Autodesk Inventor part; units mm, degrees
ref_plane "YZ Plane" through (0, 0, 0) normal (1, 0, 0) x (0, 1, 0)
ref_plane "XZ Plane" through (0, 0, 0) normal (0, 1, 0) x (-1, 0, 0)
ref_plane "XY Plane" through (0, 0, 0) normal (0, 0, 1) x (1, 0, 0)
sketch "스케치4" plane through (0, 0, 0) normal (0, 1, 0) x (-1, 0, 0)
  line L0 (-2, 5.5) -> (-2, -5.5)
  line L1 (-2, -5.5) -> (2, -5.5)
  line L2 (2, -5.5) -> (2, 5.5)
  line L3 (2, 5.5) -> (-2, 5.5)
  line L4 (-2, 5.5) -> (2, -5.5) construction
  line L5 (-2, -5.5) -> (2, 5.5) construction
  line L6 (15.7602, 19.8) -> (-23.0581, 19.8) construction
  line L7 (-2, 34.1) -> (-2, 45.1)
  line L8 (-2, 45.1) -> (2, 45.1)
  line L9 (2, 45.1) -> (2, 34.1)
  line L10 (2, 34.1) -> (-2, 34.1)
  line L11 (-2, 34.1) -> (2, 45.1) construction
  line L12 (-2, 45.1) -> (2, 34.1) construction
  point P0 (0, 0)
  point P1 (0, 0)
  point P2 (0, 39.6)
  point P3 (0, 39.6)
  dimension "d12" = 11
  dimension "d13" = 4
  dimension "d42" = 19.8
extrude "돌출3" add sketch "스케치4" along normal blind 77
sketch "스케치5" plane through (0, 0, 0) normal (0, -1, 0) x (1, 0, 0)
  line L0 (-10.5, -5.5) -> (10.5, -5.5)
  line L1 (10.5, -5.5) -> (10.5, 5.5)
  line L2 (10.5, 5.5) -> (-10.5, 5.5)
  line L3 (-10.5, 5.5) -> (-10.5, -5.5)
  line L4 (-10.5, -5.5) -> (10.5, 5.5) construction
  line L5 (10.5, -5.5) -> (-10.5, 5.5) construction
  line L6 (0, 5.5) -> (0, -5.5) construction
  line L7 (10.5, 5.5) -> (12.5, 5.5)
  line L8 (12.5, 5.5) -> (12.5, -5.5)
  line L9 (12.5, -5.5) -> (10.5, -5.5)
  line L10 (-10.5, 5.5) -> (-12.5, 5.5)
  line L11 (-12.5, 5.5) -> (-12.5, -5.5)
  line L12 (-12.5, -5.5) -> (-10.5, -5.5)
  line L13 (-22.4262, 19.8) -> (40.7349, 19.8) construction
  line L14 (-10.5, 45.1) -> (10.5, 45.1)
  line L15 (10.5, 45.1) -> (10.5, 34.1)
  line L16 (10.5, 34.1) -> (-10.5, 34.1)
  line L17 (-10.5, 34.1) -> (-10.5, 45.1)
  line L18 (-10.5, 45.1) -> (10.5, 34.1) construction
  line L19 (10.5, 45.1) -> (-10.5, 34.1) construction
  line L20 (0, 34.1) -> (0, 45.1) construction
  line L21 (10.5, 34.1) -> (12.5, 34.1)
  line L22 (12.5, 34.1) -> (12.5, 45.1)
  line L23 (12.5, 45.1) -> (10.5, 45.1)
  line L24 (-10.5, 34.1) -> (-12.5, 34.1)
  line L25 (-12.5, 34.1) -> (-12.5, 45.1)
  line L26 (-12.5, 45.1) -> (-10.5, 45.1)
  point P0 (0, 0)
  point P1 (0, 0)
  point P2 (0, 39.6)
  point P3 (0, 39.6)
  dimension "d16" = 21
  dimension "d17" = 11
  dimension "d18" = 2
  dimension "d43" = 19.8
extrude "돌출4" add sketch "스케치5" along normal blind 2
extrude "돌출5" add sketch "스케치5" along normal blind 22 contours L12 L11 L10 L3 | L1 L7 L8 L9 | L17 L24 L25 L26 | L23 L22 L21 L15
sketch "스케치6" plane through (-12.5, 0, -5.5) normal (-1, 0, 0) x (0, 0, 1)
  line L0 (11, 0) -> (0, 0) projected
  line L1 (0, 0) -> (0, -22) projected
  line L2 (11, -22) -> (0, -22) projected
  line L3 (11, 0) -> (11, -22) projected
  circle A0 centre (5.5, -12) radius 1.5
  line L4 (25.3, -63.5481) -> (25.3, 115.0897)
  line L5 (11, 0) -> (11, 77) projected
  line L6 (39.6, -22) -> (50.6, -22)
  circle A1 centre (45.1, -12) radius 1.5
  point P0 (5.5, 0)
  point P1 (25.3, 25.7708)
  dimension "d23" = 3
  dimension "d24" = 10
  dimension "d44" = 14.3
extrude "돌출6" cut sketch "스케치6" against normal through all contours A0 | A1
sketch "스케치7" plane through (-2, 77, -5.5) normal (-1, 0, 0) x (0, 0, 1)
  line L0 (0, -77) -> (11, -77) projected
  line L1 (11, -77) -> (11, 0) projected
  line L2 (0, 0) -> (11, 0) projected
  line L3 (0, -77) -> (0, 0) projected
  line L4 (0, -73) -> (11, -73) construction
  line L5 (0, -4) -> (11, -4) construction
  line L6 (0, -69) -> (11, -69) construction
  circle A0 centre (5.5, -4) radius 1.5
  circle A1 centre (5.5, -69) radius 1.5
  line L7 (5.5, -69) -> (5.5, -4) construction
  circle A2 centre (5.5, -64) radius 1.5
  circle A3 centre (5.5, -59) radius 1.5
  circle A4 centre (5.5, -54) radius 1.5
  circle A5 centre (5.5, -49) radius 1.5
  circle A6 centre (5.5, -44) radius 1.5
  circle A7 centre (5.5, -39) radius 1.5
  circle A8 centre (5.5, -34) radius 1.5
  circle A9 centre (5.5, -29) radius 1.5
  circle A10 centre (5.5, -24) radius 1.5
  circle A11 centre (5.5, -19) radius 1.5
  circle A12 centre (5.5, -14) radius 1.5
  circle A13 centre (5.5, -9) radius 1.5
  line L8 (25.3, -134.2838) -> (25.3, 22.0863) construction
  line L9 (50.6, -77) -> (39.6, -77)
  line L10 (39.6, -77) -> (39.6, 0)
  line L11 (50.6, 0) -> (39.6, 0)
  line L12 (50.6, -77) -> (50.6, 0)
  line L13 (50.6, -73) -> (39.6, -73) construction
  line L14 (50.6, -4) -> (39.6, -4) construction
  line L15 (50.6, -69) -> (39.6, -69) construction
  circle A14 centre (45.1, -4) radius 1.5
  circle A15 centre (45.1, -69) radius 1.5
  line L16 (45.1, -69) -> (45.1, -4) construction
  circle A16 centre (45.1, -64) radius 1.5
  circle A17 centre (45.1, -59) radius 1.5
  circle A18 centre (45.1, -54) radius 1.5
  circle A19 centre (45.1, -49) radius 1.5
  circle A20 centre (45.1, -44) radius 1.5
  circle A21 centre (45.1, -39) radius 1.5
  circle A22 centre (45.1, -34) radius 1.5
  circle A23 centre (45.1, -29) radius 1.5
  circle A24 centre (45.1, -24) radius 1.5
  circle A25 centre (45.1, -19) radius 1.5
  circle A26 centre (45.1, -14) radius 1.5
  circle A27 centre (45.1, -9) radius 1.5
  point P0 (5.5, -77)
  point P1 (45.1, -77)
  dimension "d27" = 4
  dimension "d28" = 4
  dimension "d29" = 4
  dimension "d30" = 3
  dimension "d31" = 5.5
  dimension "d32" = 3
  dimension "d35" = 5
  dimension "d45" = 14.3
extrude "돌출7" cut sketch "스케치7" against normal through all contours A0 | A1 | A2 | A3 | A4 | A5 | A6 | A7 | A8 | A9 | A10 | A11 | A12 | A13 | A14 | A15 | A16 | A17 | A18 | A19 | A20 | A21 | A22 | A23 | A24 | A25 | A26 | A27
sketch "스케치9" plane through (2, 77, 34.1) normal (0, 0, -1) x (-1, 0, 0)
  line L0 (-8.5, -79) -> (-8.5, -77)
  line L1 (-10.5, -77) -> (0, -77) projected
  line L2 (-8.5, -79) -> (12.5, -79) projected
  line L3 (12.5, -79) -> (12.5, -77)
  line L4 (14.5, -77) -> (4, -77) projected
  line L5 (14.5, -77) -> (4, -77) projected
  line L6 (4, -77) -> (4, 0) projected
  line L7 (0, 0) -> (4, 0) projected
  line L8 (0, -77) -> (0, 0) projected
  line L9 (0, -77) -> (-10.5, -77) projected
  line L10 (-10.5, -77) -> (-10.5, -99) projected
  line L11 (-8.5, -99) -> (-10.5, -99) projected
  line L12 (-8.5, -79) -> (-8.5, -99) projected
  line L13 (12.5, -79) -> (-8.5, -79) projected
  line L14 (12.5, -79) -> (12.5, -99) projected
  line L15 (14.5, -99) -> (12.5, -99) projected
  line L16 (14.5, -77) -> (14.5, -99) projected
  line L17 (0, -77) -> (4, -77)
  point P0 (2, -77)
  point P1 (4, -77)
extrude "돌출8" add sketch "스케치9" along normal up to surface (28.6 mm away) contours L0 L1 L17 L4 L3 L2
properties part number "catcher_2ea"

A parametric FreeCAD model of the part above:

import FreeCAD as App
import Part
import Sketcher


def add_polygon(sketch, points):
    """Adds a closed chain of lines whose ends are joined by coincident constraints."""
    first, n = sketch.GeometryCount, len(points)
    for a, b in zip(points, points[1:] + points[:1]):
        sketch.addGeometry(Part.LineSegment(App.Vector(*a, 0), App.Vector(*b, 0)), False)
    for i in range(n):
        sketch.addConstraint(Sketcher.Constraint("Coincident", first + i, 2, first + (i + 1) % n, 1))

doc = App.newDocument("Part")
body = doc.addObject("PartDesign::Body", "Body")
body.AllowCompound = True

sketch1 = body.newObject("Sketcher::SketchObject", "Sketch")
sketch1.AttachmentSupport = (doc.getObject("XZ_Plane"), [""])
sketch1.MapMode = "FlatFace"
add_polygon(sketch1, [(-2, 5.5), (2, 5.5), (2, -5.5), (-2, -5.5)])
add_polygon(sketch1, [(2, 45.1), (2, 34.1), (-2, 34.1), (-2, 45.1)])
sketch1.addConstraint(Sketcher.Constraint("Horizontal", 0))
sketch1.addConstraint(Sketcher.Constraint("Vertical", 1))
sketch1.addConstraint(Sketcher.Constraint("Horizontal", 2))
sketch1.addConstraint(Sketcher.Constraint("Vertical", 3))
sketch1.addConstraint(Sketcher.Constraint("Vertical", 4))
sketch1.addConstraint(Sketcher.Constraint("Horizontal", 5))
sketch1.addConstraint(Sketcher.Constraint("Vertical", 6))
sketch1.addConstraint(Sketcher.Constraint("Horizontal", 7))
sketch1.addConstraint(Sketcher.Constraint("Symmetric", 0, 2, 2, 2, -1, 1))
sketch1.addConstraint(Sketcher.Constraint("Vertical", 1, 2, 4, 2))
sketch1.addConstraint(Sketcher.Constraint("Vertical", 3, 2, 5, 2))
sketch1.addConstraint(Sketcher.Constraint("Equal", 3, 4))
sketch1.addConstraint(Sketcher.Constraint("DistanceX", 0, 1, 0, 2, 4.0))
sketch1.addConstraint(Sketcher.Constraint("DistanceY", 1, 2, 1, 1, 11.0))
sketch1.addConstraint(Sketcher.Constraint("DistanceY", -1, 1, 4, 2, 34.1))
pad1 = body.newObject("PartDesign::Pad", "Pad")
pad1.Profile = sketch1
pad1.Length = 77
pad1.Reversed = True

sketch2 = body.newObject("Sketcher::SketchObject", "Sketch001")
sketch2.AttachmentSupport = (doc.getObject("XZ_Plane"), [""])
sketch2.MapMode = "FlatFace"
add_polygon(sketch2, [(-12, 6), (-12, -6), (12, -6), (12, 6)])
add_polygon(sketch2, [(-12, 45), (-12, 34), (12, 34), (12, 45)])
sketch2.addConstraint(Sketcher.Constraint("Vertical", 0))
sketch2.addConstraint(Sketcher.Constraint("Horizontal", 1))
sketch2.addConstraint(Sketcher.Constraint("Vertical", 2))
sketch2.addConstraint(Sketcher.Constraint("Horizontal", 3))
sketch2.addConstraint(Sketcher.Constraint("Vertical", 4))
sketch2.addConstraint(Sketcher.Constraint("Horizontal", 5))
sketch2.addConstraint(Sketcher.Constraint("Vertical", 6))
sketch2.addConstraint(Sketcher.Constraint("Horizontal", 7))
sketch2.addConstraint(Sketcher.Constraint("Symmetric", 0, 2, 2, 2, -1, 1))
sketch2.addConstraint(Sketcher.Constraint("Vertical", 3, 2, 4, 2))
sketch2.addConstraint(Sketcher.Constraint("Vertical", 2, 2, 5, 2))
sketch2.addConstraint(Sketcher.Constraint("Equal", 2, 4))
sketch2.addConstraint(Sketcher.Constraint("DistanceY", 0, 2, 0, 1, 11.0))
sketch2.addConstraint(Sketcher.Constraint("DistanceX", 1, 1, 1, 2, 25.0))
sketch2.addConstraint(Sketcher.Constraint("DistanceY", -1, 1, 4, 2, 34.1))
pad2 = body.newObject("PartDesign::Pad", "Pad001")
pad2.Profile = sketch2
pad2.Length = 2

sketch3 = body.newObject("Sketcher::SketchObject", "Sketch002")
sketch3.AttachmentSupport = (doc.getObject("XZ_Plane"), [""])
sketch3.MapMode = "FlatFace"
add_polygon(sketch3, [(-12.5, -5.5), (-10.5, -5.5), (-10.5, 5.5), (-12.5, 5.5)])
add_polygon(sketch3, [(10.5, 5.5), (10.5, -5.5), (12.5, -5.5), (12.5, 5.5)])
add_polygon(sketch3, [(-10.5, 34.1), (-10.5, 45.1), (-12.5, 45.1), (-12.5, 34.1)])
add_polygon(sketch3, [(12.5, 45.1), (10.5, 45.1), (10.5, 34.1), (12.5, 34.1)])
sketch3.addConstraint(Sketcher.Constraint("Horizontal", 0))
sketch3.addConstraint(Sketcher.Constraint("Vertical", 1))
sketch3.addConstraint(Sketcher.Constraint("Horizontal", 2))
sketch3.addConstraint(Sketcher.Constraint("Vertical", 3))
sketch3.addConstraint(Sketcher.Constraint("Vertical", 4))
sketch3.addConstraint(Sketcher.Constraint("Horizontal", 5))
sketch3.addConstraint(Sketcher.Constraint("Vertical", 6))
sketch3.addConstraint(Sketcher.Constraint("Horizontal", 7))
sketch3.addConstraint(Sketcher.Constraint("Vertical", 8))
sketch3.addConstraint(Sketcher.Constraint("Horizontal", 9))
sketch3.addConstraint(Sketcher.Constraint("Vertical", 10))
sketch3.addConstraint(Sketcher.Constraint("Horizontal", 11))
sketch3.addConstraint(Sketcher.Constraint("Horizontal", 12))
sketch3.addConstraint(Sketcher.Constraint("Vertical", 13))
sketch3.addConstraint(Sketcher.Constraint("Horizontal", 14))
sketch3.addConstraint(Sketcher.Constraint("Vertical", 15))
sketch3.addConstraint(Sketcher.Constraint("Symmetric", 1, 2, 4, 2, -1, 1))
sketch3.addConstraint(Sketcher.Constraint("Symmetric", 3, 2, 6, 2, -1, 1))
sketch3.addConstraint(Sketcher.Constraint("Symmetric", 8, 2, 12, 2, -2))
sketch3.addConstraint(Sketcher.Constraint("Symmetric", 10, 2, 14, 2, -2))
sketch3.addConstraint(Sketcher.Constraint("Horizontal", 3, 2, 4, 2))
sketch3.addConstraint(Sketcher.Constraint("Vertical", 1, 2, 8, 2))
sketch3.addConstraint(Sketcher.Constraint("Vertical", 3, 2, 9, 2))
sketch3.addConstraint(Sketcher.Constraint("Equal", 6, 8))
sketch3.addConstraint(Sketcher.Constraint("DistanceX", 0, 1, 0, 2, 2.0))
sketch3.addConstraint(Sketcher.Constraint("DistanceY", 1, 1, 1, 2, 11.0))
sketch3.addConstraint(Sketcher.Constraint("DistanceX", 0, 2, 4, 2, 21.0))
sketch3.addConstraint(Sketcher.Constraint("DistanceY", -1, 1, 8, 2, 45.1))
pad3 = body.newObject("PartDesign::Pad", "Pad002")
pad3.Profile = sketch3
pad3.Length = 22

sketch4 = body.newObject("Sketcher::SketchObject", "Sketch003")
sketch4.AttachmentSupport = (doc.getObject("YZ_Plane"), [""])
sketch4.MapMode = "FlatFace"
sketch4.AttachmentOffset = App.Placement(App.Vector(0, 0, -12.5), App.Rotation())
sketch4.addGeometry(Part.Circle(App.Vector(-12, 0, 0), App.Vector(0, 0, 1), 1.5), False)
sketch4.addGeometry(Part.Circle(App.Vector(-12, 39.6, 0), App.Vector(0, 0, 1), 1.5), False)
sketch4.addConstraint(Sketcher.Constraint("Equal", 0, 1))
sketch4.addConstraint(Sketcher.Constraint("PointOnObject", 0, 3, -1))
sketch4.addConstraint(Sketcher.Constraint("Vertical", 0, 3, 1, 3))
sketch4.addConstraint(Sketcher.Constraint("Diameter", 0, 3.0))
sketch4.addConstraint(Sketcher.Constraint("DistanceX", 0, 3, -1, 1, 12.0))
sketch4.addConstraint(Sketcher.Constraint("DistanceY", -1, 1, 1, 3, 39.6))
pocket1 = body.newObject("PartDesign::Pocket", "Pocket")
pocket1.Profile = sketch4
pocket1.Type = "ThroughAll"
pocket1.Reversed = True

sketch5 = body.newObject("Sketcher::SketchObject", "Sketch004")
sketch5.AttachmentSupport = (doc.getObject("YZ_Plane"), [""])
sketch5.MapMode = "FlatFace"
sketch5.AttachmentOffset = App.Placement(App.Vector(0, 0, -2), App.Rotation())
sketch5.addGeometry(Part.Circle(App.Vector(73, 0, 0), App.Vector(0, 0, 1), 1.5), False)
sketch5.addGeometry(Part.Circle(App.Vector(8, 0, 0), App.Vector(0, 0, 1), 1.5), False)
sketch5.addGeometry(Part.Circle(App.Vector(13, 0, 0), App.Vector(0, 0, 1), 1.5), False)
sketch5.addGeometry(Part.Circle(App.Vector(18, 0, 0), App.Vector(0, 0, 1), 1.5), False)
sketch5.addGeometry(Part.Circle(App.Vector(23, 0, 0), App.Vector(0, 0, 1), 1.5), False)
sketch5.addGeometry(Part.Circle(App.Vector(28, 0, 0), App.Vector(0, 0, 1), 1.5), False)
sketch5.addGeometry(Part.Circle(App.Vector(33, 0, 0), App.Vector(0, 0, 1), 1.5), False)
sketch5.addGeometry(Part.Circle(App.Vector(38, 0, 0), App.Vector(0, 0, 1), 1.5), False)
sketch5.addGeometry(Part.Circle(App.Vector(43, 0, 0), App.Vector(0, 0, 1), 1.5), False)
sketch5.addGeometry(Part.Circle(App.Vector(48, 0, 0), App.Vector(0, 0, 1), 1.5), False)
sketch5.addGeometry(Part.Circle(App.Vector(53, 0, 0), App.Vector(0, 0, 1), 1.5), False)
sketch5.addGeometry(Part.Circle(App.Vector(58, 0, 0), App.Vector(0, 0, 1), 1.5), False)
sketch5.addGeometry(Part.Circle(App.Vector(63, 0, 0), App.Vector(0, 0, 1), 1.5), False)
sketch5.addGeometry(Part.Circle(App.Vector(68, 0, 0), App.Vector(0, 0, 1), 1.5), False)
sketch5.addGeometry(Part.Circle(App.Vector(73, 39.6, 0), App.Vector(0, 0, 1), 1.5), False)
sketch5.addGeometry(Part.Circle(App.Vector(8, 39.6, 0), App.Vector(0, 0, 1), 1.5), False)
sketch5.addGeometry(Part.Circle(App.Vector(13, 39.6, 0), App.Vector(0, 0, 1), 1.5), False)
sketch5.addGeometry(Part.Circle(App.Vector(18, 39.6, 0), App.Vector(0, 0, 1), 1.5), False)
sketch5.addGeometry(Part.Circle(App.Vector(23, 39.6, 0), App.Vector(0, 0, 1), 1.5), False)
sketch5.addGeometry(Part.Circle(App.Vector(28, 39.6, 0), App.Vector(0, 0, 1), 1.5), False)
sketch5.addGeometry(Part.Circle(App.Vector(33, 39.6, 0), App.Vector(0, 0, 1), 1.5), False)
sketch5.addGeometry(Part.Circle(App.Vector(38, 39.6, 0), App.Vector(0, 0, 1), 1.5), False)
sketch5.addGeometry(Part.Circle(App.Vector(43, 39.6, 0), App.Vector(0, 0, 1), 1.5), False)
sketch5.addGeometry(Part.Circle(App.Vector(48, 39.6, 0), App.Vector(0, 0, 1), 1.5), False)
sketch5.addGeometry(Part.Circle(App.Vector(53, 39.6, 0), App.Vector(0, 0, 1), 1.5), False)
sketch5.addGeometry(Part.Circle(App.Vector(58, 39.6, 0), App.Vector(0, 0, 1), 1.5), False)
sketch5.addGeometry(Part.Circle(App.Vector(63, 39.6, 0), App.Vector(0, 0, 1), 1.5), False)
sketch5.addGeometry(Part.Circle(App.Vector(68, 39.6, 0), App.Vector(0, 0, 1), 1.5), False)
sketch5.addConstraint(Sketcher.Constraint("Equal", 0, 1))
sketch5.addConstraint(Sketcher.Constraint("Equal", 1, 2))
sketch5.addConstraint(Sketcher.Constraint("Equal", 2, 3))
sketch5.addConstraint(Sketcher.Constraint("Equal", 3, 4))
sketch5.addConstraint(Sketcher.Constraint("Equal", 4, 5))
sketch5.addConstraint(Sketcher.Constraint("Equal", 5, 6))
sketch5.addConstraint(Sketcher.Constraint("Equal", 6, 7))
sketch5.addConstraint(Sketcher.Constraint("Equal", 7, 8))
sketch5.addConstraint(Sketcher.Constraint("Equal", 8, 9))
sketch5.addConstraint(Sketcher.Constraint("Equal", 9, 10))
sketch5.addConstraint(Sketcher.Constraint("Equal", 10, 11))
sketch5.addConstraint(Sketcher.Constraint("Equal", 11, 12))
sketch5.addConstraint(Sketcher.Constraint("Equal", 12, 13))
sketch5.addConstraint(Sketcher.Constraint("Equal", 13, 14))
sketch5.addConstraint(Sketcher.Constraint("Equal", 14, 15))
sketch5.addConstraint(Sketcher.Constraint("Equal", 15, 16))
sketch5.addConstraint(Sketcher.Constraint("Equal", 16, 17))
sketch5.addConstraint(Sketcher.Constraint("Equal", 17, 18))
sketch5.addConstraint(Sketcher.Constraint("Equal", 18, 19))
sketch5.addConstraint(Sketcher.Constraint("Equal", 19, 20))
sketch5.addConstraint(Sketcher.Constraint("Equal", 20, 21))
sketch5.addConstraint(Sketcher.Constraint("Equal", 21, 22))
sketch5.addConstraint(Sketcher.Constraint("Equal", 22, 23))
sketch5.addConstraint(Sketcher.Constraint("Equal", 23, 24))
sketch5.addConstraint(Sketcher.Constraint("Equal", 24, 25))
sketch5.addConstraint(Sketcher.Constraint("Equal", 25, 26))
sketch5.addConstraint(Sketcher.Constraint("Equal", 26, 27))
sketch5.addConstraint(Sketcher.Constraint("PointOnObject", 0, 3, -1))
sketch5.addConstraint(Sketcher.Constraint("PointOnObject", 1, 3, -1))
sketch5.addConstraint(Sketcher.Constraint("PointOnObject", 2, 3, -1))
sketch5.addConstraint(Sketcher.Constraint("PointOnObject", 3, 3, -1))
sketch5.addConstraint(Sketcher.Constraint("PointOnObject", 4, 3, -1))
sketch5.addConstraint(Sketcher.Constraint("PointOnObject", 5, 3, -1))
sketch5.addConstraint(Sketcher.Constraint("PointOnObject", 6, 3, -1))
sketch5.addConstraint(Sketcher.Constraint("PointOnObject", 7, 3, -1))
sketch5.addConstraint(Sketcher.Constraint("PointOnObject", 8, 3, -1))
sketch5.addConstraint(Sketcher.Constraint("PointOnObject", 9, 3, -1))
sketch5.addConstraint(Sketcher.Constraint("PointOnObject", 10, 3, -1))
sketch5.addConstraint(Sketcher.Constraint("PointOnObject", 11, 3, -1))
sketch5.addConstraint(Sketcher.Constraint("PointOnObject", 12, 3, -1))
sketch5.addConstraint(Sketcher.Constraint("PointOnObject", 13, 3, -1))
sketch5.addConstraint(Sketcher.Constraint("Horizontal", 14, 3, 15, 3))
sketch5.addConstraint(Sketcher.Constraint("Horizontal", 15, 3, 16, 3))
sketch5.addConstraint(Sketcher.Constraint("Horizontal", 16, 3, 17, 3))
sketch5.addConstraint(Sketcher.Constraint("Horizontal", 17, 3, 18, 3))
sketch5.addConstraint(Sketcher.Constraint("Horizontal", 18, 3, 19, 3))
sketch5.addConstraint(Sketcher.Constraint("Horizontal", 19, 3, 20, 3))
sketch5.addConstraint(Sketcher.Constraint("Horizontal", 20, 3, 21, 3))
sketch5.addConstraint(Sketcher.Constraint("Horizontal", 21, 3, 22, 3))
sketch5.addConstraint(Sketcher.Constraint("Horizontal", 22, 3, 23, 3))
sketch5.addConstraint(Sketcher.Constraint("Horizontal", 23, 3, 24, 3))
sketch5.addConstraint(Sketcher.Constraint("Horizontal", 24, 3, 25, 3))
sketch5.addConstraint(Sketcher.Constraint("Horizontal", 25, 3, 26, 3))
sketch5.addConstraint(Sketcher.Constraint("Horizontal", 26, 3, 27, 3))
sketch5.addConstraint(Sketcher.Constraint("Vertical", 0, 3, 14, 3))
sketch5.addConstraint(Sketcher.Constraint("Vertical", 1, 3, 15, 3))
sketch5.addConstraint(Sketcher.Constraint("Vertical", 2, 3, 16, 3))
sketch5.addConstraint(Sketcher.Constraint("Vertical", 3, 3, 17, 3))
sketch5.addConstraint(Sketcher.Constraint("Vertical", 4, 3, 18, 3))
sketch5.addConstraint(Sketcher.Constraint("Vertical", 5, 3, 19, 3))
sketch5.addConstraint(Sketcher.Constraint("Vertical", 6, 3, 20, 3))
sketch5.addConstraint(Sketcher.Constraint("Vertical", 7, 3, 21, 3))
sketch5.addConstraint(Sketcher.Constraint("Vertical", 8, 3, 22, 3))
sketch5.addConstraint(Sketcher.Constraint("Vertical", 9, 3, 23, 3))
sketch5.addConstraint(Sketcher.Constraint("Vertical", 10, 3, 24, 3))
sketch5.addConstraint(Sketcher.Constraint("Vertical", 11, 3, 25, 3))
sketch5.addConstraint(Sketcher.Constraint("Vertical", 12, 3, 26, 3))
sketch5.addConstraint(Sketcher.Constraint("Vertical", 13, 3, 27, 3))
sketch5.addConstraint(Sketcher.Constraint("Diameter", 0, 3.0))
sketch5.addConstraint(Sketcher.Constraint("DistanceX", 1, 3, 2, 3, 5.0))
sketch5.addConstraint(Sketcher.Constraint("DistanceX", 2, 3, 3, 3, 5.0))
sketch5.addConstraint(Sketcher.Constraint("DistanceX", 3, 3, 4, 3, 5.0))
sketch5.addConstraint(Sketcher.Constraint("DistanceX", 4, 3, 5, 3, 5.0))
sketch5.addConstraint(Sketcher.Constraint("DistanceX", 5, 3, 6, 3, 5.0))
sketch5.addConstraint(Sketcher.Constraint("DistanceX", 6, 3, 7, 3, 5.0))
sketch5.addConstraint(Sketcher.Constraint("DistanceX", 7, 3, 8, 3, 5.0))
sketch5.addConstraint(Sketcher.Constraint("DistanceX", 8, 3, 9, 3, 5.0))
sketch5.addConstraint(Sketcher.Constraint("DistanceX", 9, 3, 10, 3, 5.0))
sketch5.addConstraint(Sketcher.Constraint("DistanceX", 10, 3, 11, 3, 5.0))
sketch5.addConstraint(Sketcher.Constraint("DistanceX", 11, 3, 12, 3, 5.0))
sketch5.addConstraint(Sketcher.Constraint("DistanceX", 12, 3, 0, 3, 10.0))
sketch5.addConstraint(Sketcher.Constraint("DistanceX", 13, 3, 0, 3, 5.0))
sketch5.addConstraint(Sketcher.Constraint("DistanceX", -1, 1, 0, 3, 73.0))
sketch5.addConstraint(Sketcher.Constraint("DistanceY", -1, 1, 14, 3, 39.6))
pocket2 = body.newObject("PartDesign::Pocket", "Pocket001")
pocket2.Profile = sketch5
pocket2.Type = "ThroughAll"
pocket2.Reversed = True

sketch6 = body.newObject("Sketcher::SketchObject", "Sketch005")
sketch6.AttachmentSupport = (doc.getObject("XY_Plane"), [""])
sketch6.MapMode = "FlatFace"
sketch6.AttachmentOffset = App.Placement(App.Vector(0, 0, 34.1), App.Rotation())
add_polygon(sketch6, [(10.5, 0), (10.5, -2), (-10.5, -2), (-10.5, 0)])
sketch6.addConstraint(Sketcher.Constraint("Vertical", 0))
sketch6.addConstraint(Sketcher.Constraint("Horizontal", 1))
sketch6.addConstraint(Sketcher.Constraint("Vertical", 2))
sketch6.addConstraint(Sketcher.Constraint("Horizontal", 3))
sketch6.addConstraint(Sketcher.Constraint("Symmetric", 2, 2, 3, 2, -1, 1))
sketch6.addConstraint(Sketcher.Constraint("DistanceX", 1, 2, 1, 1, 21.0))
sketch6.addConstraint(Sketcher.Constraint("DistanceY", 0, 2, 0, 1, 2.0))
pad4 = body.newObject("PartDesign::Pad", "Pad003")
pad4.Profile = sketch6
pad4.Length = 28.6
pad4.Reversed = True

doc.recompute()
